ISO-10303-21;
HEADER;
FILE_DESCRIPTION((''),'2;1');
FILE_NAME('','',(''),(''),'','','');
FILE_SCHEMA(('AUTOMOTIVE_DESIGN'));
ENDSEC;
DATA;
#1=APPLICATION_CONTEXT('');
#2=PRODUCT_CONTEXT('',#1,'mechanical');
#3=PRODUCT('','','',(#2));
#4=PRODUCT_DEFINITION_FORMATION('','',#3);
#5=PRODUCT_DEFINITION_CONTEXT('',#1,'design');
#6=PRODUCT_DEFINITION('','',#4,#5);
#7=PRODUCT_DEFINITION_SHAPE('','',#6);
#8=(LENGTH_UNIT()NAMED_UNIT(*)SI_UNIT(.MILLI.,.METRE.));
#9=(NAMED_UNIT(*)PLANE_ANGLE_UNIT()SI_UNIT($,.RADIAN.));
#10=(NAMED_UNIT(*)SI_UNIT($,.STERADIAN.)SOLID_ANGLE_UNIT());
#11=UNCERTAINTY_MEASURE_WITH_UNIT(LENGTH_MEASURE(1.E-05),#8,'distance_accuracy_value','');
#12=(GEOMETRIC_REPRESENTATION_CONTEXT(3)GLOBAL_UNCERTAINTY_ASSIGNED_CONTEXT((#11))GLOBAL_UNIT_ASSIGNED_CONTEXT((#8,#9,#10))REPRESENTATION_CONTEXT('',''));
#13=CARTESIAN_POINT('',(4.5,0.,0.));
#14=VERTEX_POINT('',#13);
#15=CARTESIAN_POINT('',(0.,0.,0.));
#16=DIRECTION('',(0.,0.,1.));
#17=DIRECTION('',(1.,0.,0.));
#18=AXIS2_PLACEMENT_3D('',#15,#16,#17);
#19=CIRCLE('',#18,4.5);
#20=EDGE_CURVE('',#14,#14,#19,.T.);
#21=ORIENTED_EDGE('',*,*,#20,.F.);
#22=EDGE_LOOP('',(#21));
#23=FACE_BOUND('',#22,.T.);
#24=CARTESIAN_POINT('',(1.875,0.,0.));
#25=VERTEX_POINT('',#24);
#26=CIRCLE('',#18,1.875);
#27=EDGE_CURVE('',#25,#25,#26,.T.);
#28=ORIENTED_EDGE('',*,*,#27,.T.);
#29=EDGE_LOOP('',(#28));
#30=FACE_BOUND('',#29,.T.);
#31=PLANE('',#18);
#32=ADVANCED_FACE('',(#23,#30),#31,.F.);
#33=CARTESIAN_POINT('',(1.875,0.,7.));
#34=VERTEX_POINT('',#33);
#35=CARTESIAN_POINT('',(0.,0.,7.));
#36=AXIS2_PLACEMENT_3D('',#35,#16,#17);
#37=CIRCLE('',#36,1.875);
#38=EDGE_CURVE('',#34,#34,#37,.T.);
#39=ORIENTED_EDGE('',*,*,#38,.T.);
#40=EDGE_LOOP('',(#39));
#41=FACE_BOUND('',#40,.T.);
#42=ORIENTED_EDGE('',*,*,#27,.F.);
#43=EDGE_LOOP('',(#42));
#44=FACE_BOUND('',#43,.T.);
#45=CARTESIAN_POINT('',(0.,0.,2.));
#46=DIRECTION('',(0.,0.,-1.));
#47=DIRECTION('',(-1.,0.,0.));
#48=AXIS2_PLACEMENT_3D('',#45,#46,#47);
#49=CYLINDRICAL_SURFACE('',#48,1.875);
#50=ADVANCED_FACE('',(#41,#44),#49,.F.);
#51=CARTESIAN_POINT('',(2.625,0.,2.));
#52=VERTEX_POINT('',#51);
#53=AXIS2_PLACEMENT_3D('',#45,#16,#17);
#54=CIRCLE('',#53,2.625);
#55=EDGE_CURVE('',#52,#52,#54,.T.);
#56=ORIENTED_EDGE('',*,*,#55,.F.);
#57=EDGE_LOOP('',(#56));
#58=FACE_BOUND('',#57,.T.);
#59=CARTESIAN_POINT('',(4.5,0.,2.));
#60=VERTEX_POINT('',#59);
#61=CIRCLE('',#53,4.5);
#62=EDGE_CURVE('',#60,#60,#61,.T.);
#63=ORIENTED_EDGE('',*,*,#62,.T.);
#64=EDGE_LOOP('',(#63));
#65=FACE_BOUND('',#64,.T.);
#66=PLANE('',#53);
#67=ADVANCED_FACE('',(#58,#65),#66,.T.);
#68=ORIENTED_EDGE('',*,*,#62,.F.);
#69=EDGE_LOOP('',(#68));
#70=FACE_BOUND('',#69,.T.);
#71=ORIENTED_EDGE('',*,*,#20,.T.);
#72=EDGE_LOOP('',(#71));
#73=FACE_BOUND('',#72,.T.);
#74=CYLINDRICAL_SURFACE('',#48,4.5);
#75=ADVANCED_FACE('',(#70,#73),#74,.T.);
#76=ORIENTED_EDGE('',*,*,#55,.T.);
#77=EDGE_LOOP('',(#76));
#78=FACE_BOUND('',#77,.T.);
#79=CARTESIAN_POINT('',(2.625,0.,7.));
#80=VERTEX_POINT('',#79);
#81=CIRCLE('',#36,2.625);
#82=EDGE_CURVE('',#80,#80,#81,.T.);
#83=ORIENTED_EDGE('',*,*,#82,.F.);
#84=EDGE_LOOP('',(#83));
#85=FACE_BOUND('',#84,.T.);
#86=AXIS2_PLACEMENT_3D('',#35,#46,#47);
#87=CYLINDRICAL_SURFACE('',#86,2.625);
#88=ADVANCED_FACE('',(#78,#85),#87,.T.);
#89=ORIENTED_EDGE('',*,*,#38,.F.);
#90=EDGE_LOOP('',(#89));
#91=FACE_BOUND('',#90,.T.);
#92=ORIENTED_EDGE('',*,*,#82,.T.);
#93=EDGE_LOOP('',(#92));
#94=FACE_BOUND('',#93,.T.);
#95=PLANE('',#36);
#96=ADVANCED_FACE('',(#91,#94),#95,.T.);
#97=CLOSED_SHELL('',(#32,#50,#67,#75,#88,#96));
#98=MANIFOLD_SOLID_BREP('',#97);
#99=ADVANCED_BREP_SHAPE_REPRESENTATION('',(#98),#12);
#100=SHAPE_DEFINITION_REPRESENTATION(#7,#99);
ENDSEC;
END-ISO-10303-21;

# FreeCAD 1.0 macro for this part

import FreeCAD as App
import Part
import Sketcher
Q = App.Units.Quantity

doc = App.newDocument("Part")
params = doc.addObject("Spreadsheet::Sheet", "Params")
for row, (alias, value) in enumerate([
    ("sketch1_diameter", "9 mm"),
    ("sketch1_diameter2", "3.75 mm"),
    ("pad1_length", "2 mm"),
    ("sketch2_diameter", "5.25 mm"),
    ("sketch2_diameter2", "3.75 mm"),
    ("pad2_length", "5 mm"),
], start=1):
    params.set(f"A{row}", alias)
    params.set(f"B{row}", "=" + value)
    params.setAlias(f"B{row}", alias)

body = doc.addObject("PartDesign::Body", "Body")

# Sketch on XY plane
sketch1 = body.newObject("Sketcher::SketchObject", "Sketch")
sketch1.AttachmentSupport = (doc.getObject("XY_Plane"), [""])
sketch1.MapMode = "FlatFace"
sketch1.addGeometry([
    Part.Circle(App.Vector(0, 0, 0), App.Vector(0, 0, 1), 4.5),
    Part.Circle(App.Vector(0, 0, 0), App.Vector(0, 0, 1), 1.875),
], False)
sketch1.addConstraint([
    Sketcher.Constraint("Coincident", 0, 3, -1, 1),
    Sketcher.Constraint("Coincident", 1, 3, -1, 1),
    Sketcher.Constraint("Diameter", 0, Q("9 mm")),
    Sketcher.Constraint("Diameter", 1, Q("3.75 mm")),
])
sketch1.setExpression("Constraints[2]", "Params.sketch1_diameter")
sketch1.setExpression("Constraints[3]", "Params.sketch1_diameter2")
pad1 = body.newObject("PartDesign::Pad", "Pad")
pad1.Profile = sketch1
pad1.setExpression("Length", "Params.pad1_length")

# Sketch on XY plane
sketch2 = body.newObject("Sketcher::SketchObject", "Sketch001")
sketch2.AttachmentSupport = (doc.getObject("XY_Plane"), [""])
sketch2.MapMode = "FlatFace"
sketch2.AttachmentOffset = App.Placement(App.Vector(0, 0, 2), App.Rotation())
sketch2.addGeometry([
    Part.Circle(App.Vector(0, 0, 0), App.Vector(0, 0, 1), 2.625),
    Part.Circle(App.Vector(0, 0, 0), App.Vector(0, 0, 1), 1.875),
], False)
sketch2.addConstraint([
    Sketcher.Constraint("Coincident", 0, 3, -1, 1),
    Sketcher.Constraint("Coincident", 1, 3, -1, 1),
    Sketcher.Constraint("Diameter", 0, Q("5.25 mm")),
    Sketcher.Constraint("Diameter", 1, Q("3.75 mm")),
])
sketch2.setExpression("Constraints[2]", "Params.sketch2_diameter")
sketch2.setExpression("Constraints[3]", "Params.sketch2_diameter2")
pad2 = body.newObject("PartDesign::Pad", "Pad001")
pad2.Profile = sketch2
pad2.setExpression("Length", "Params.pad2_length")

doc.recompute()
